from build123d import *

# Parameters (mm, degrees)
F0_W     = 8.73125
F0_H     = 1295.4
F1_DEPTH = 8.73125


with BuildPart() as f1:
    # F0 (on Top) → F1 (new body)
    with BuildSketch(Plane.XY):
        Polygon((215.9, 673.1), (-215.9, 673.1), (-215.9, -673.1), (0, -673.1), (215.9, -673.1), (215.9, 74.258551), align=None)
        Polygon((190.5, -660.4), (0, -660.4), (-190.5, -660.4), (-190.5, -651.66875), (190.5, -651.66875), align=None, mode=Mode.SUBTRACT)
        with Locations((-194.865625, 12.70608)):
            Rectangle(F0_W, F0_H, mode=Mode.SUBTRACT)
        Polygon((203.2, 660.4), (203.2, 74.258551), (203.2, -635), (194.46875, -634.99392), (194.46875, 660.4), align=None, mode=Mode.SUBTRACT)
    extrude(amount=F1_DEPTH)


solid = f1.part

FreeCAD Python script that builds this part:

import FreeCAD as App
import Part
import Sketcher

V = App.Vector
Q = App.Units.Quantity


def add_polygon(sketch, points):
    """Adds a closed chain of lines whose ends are joined by coincident constraints."""
    first, n = sketch.GeometryCount, len(points)
    for a, b in zip(points, points[1:] + points[:1]):
        sketch.addGeometry(Part.LineSegment(App.Vector(*a, 0), App.Vector(*b, 0)), False)
    for i in range(n):
        sketch.addConstraint(Sketcher.Constraint("Coincident", first + i, 2, first + (i + 1) % n, 1))

doc = App.newDocument("Part")
body = doc.addObject("PartDesign::Body", "Body")

# Sketch on XY plane
sketch1 = body.newObject("Sketcher::SketchObject", "Sketch")
sketch1.AttachmentSupport = (doc.getObject("XY_Plane"), [""])
sketch1.MapMode = "FlatFace"
add_polygon(sketch1, [(216, 673), (-216, 673), (-216, -673), (216, -673)])  # lines 0-3
add_polygon(sketch1, [(190, -652), (190, -660), (-190, -660), (-190, -652)])  # lines 4-7
add_polygon(sketch1, [(-190, -635), (-199, -635), (-199, 660), (-190, 660)])  # lines 8-11
add_polygon(sketch1, [(194, 660), (203, 660), (203, -635), (194, -635)])  # lines 12-15
sketch1.addConstraint([
    Sketcher.Constraint("Horizontal", 0),
    Sketcher.Constraint("Vertical", 1),
    Sketcher.Constraint("Horizontal", 2),
    Sketcher.Constraint("Vertical", 3),
    Sketcher.Constraint("Vertical", 4),
    Sketcher.Constraint("Horizontal", 5),
    Sketcher.Constraint("Vertical", 6),
    Sketcher.Constraint("Horizontal", 7),
    Sketcher.Constraint("Horizontal", 8),
    Sketcher.Constraint("Vertical", 9),
    Sketcher.Constraint("Horizontal", 10),
    Sketcher.Constraint("Vertical", 11),
    Sketcher.Constraint("Horizontal", 12),
    Sketcher.Constraint("Vertical", 13),
    Sketcher.Constraint("Vertical", 15),
    Sketcher.Constraint("Symmetric", 0, 2, 2, 2, -1, 1),
    Sketcher.Constraint("Horizontal", 11, 2, 14, 2),
    Sketcher.Constraint("Vertical", 6, 2, 10, 2),
    Sketcher.Constraint("Equal", 10, 12),
    Sketcher.Constraint("Equal", 12, 4),
    Sketcher.Constraint("Equal", 11, 13),
    Sketcher.Constraint("DistanceX", 0, 2, 0, 1, Q("17 in")),
    Sketcher.Constraint("DistanceX", 5, 2, 5, 1, Q("15 in")),
    Sketcher.Constraint("DistanceY", 1, 2, 1, 1, Q("53 in")),
    Sketcher.Constraint("DistanceY", 9, 1, 9, 2, Q("51 in")),
    Sketcher.Constraint("DistanceY", 4, 2, -1, 1, Q("26 in")),
    Sketcher.Constraint("DistanceX", -1, 1, 12, 2, Q("8 in")),
    Sketcher.Constraint("DistanceY", -1, 1, 12, 2, Q("26 in")),
    Sketcher.Constraint("DistanceX", 4, 2, 2, 2, Q("1 in")),
    Sketcher.Constraint("DistanceX", 8, 2, 8, 1, Q("0.34375 in")),
    Sketcher.Constraint("DistanceY", 15, 1, 15, 2, Q("1295.39392 mm")),
])
pad1 = body.newObject("PartDesign::Pad", "Pad")
pad1.Profile = sketch1
pad1.Length = Q("0.34375 in")

doc.recompute()
